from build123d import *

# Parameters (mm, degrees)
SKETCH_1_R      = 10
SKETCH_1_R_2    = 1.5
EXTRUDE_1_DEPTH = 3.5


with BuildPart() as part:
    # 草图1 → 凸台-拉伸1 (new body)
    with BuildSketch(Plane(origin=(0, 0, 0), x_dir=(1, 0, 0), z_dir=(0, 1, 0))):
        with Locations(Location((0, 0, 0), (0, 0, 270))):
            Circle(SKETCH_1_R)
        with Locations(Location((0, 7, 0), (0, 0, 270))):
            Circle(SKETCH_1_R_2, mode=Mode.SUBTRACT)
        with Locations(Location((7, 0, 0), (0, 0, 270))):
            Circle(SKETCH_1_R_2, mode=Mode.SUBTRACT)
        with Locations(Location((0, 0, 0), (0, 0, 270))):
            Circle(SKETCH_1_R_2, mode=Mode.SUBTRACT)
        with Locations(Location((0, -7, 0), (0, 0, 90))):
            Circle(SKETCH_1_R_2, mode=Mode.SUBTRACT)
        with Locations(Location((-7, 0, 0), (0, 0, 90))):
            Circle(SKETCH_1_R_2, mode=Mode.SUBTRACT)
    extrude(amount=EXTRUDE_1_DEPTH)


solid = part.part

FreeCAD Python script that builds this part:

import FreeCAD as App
import Part
import Sketcher
from FreeCAD import Vector

doc = App.newDocument("Part")
body = doc.addObject("PartDesign::Body", "Body")

# Sketch on XZ plane
sketch1 = body.newObject("Sketcher::SketchObject", "Sketch")
sketch1.AttachmentSupport = (doc.getObject("XZ_Plane"), [""])
sketch1.MapMode = "FlatFace"
sketch1.addGeometry([
    Part.Circle(Vector(0, 0, 0), Vector(0, 0, 1), 10),  # 0
    Part.Circle(Vector(0, -7, 0), Vector(0, 0, 1), 1.5),  # 1
    Part.Circle(Vector(-7, 0, 0), Vector(0, 0, 1), 1.5),  # 2
    Part.Circle(Vector(7, 0, 0), Vector(0, 0, 1), 1.5),  # 3
    Part.Circle(Vector(0, 0, 0), Vector(0, 0, 1), 1.5),  # 4
    Part.Circle(Vector(0, 7, 0), Vector(0, 0, 1), 1.5),  # 5
], False)
sketch1.addConstraint([
    Sketcher.Constraint("Coincident", 0, 3, -1, 1),
    Sketcher.Constraint("Coincident", 4, 3, -1, 1),
    Sketcher.Constraint("Equal", 1, 2),
    Sketcher.Constraint("Equal", 2, 3),
    Sketcher.Constraint("Equal", 3, 4),
    Sketcher.Constraint("Equal", 4, 5),
    Sketcher.Constraint("Symmetric", 2, 3, 3, 3, -1, 1),
    Sketcher.Constraint("Symmetric", 1, 3, 5, 3, -1, 1),
    Sketcher.Constraint("PointOnObject", 1, 3, -2),
    Sketcher.Constraint("PointOnObject", 2, 3, -1),
    Sketcher.Constraint("Diameter", 0, 20.0),
    Sketcher.Constraint("Diameter", 1, 3.0),
    Sketcher.Constraint("DistanceY", 1, 3, -1, 1, 7.0),
    Sketcher.Constraint("DistanceX", 2, 3, -1, 1, 7.0),
])
pad1 = body.newObject("PartDesign::Pad", "Pad")
pad1.Profile = sketch1
pad1.Length = 3.5
pad1.Reversed = True

doc.recompute()
